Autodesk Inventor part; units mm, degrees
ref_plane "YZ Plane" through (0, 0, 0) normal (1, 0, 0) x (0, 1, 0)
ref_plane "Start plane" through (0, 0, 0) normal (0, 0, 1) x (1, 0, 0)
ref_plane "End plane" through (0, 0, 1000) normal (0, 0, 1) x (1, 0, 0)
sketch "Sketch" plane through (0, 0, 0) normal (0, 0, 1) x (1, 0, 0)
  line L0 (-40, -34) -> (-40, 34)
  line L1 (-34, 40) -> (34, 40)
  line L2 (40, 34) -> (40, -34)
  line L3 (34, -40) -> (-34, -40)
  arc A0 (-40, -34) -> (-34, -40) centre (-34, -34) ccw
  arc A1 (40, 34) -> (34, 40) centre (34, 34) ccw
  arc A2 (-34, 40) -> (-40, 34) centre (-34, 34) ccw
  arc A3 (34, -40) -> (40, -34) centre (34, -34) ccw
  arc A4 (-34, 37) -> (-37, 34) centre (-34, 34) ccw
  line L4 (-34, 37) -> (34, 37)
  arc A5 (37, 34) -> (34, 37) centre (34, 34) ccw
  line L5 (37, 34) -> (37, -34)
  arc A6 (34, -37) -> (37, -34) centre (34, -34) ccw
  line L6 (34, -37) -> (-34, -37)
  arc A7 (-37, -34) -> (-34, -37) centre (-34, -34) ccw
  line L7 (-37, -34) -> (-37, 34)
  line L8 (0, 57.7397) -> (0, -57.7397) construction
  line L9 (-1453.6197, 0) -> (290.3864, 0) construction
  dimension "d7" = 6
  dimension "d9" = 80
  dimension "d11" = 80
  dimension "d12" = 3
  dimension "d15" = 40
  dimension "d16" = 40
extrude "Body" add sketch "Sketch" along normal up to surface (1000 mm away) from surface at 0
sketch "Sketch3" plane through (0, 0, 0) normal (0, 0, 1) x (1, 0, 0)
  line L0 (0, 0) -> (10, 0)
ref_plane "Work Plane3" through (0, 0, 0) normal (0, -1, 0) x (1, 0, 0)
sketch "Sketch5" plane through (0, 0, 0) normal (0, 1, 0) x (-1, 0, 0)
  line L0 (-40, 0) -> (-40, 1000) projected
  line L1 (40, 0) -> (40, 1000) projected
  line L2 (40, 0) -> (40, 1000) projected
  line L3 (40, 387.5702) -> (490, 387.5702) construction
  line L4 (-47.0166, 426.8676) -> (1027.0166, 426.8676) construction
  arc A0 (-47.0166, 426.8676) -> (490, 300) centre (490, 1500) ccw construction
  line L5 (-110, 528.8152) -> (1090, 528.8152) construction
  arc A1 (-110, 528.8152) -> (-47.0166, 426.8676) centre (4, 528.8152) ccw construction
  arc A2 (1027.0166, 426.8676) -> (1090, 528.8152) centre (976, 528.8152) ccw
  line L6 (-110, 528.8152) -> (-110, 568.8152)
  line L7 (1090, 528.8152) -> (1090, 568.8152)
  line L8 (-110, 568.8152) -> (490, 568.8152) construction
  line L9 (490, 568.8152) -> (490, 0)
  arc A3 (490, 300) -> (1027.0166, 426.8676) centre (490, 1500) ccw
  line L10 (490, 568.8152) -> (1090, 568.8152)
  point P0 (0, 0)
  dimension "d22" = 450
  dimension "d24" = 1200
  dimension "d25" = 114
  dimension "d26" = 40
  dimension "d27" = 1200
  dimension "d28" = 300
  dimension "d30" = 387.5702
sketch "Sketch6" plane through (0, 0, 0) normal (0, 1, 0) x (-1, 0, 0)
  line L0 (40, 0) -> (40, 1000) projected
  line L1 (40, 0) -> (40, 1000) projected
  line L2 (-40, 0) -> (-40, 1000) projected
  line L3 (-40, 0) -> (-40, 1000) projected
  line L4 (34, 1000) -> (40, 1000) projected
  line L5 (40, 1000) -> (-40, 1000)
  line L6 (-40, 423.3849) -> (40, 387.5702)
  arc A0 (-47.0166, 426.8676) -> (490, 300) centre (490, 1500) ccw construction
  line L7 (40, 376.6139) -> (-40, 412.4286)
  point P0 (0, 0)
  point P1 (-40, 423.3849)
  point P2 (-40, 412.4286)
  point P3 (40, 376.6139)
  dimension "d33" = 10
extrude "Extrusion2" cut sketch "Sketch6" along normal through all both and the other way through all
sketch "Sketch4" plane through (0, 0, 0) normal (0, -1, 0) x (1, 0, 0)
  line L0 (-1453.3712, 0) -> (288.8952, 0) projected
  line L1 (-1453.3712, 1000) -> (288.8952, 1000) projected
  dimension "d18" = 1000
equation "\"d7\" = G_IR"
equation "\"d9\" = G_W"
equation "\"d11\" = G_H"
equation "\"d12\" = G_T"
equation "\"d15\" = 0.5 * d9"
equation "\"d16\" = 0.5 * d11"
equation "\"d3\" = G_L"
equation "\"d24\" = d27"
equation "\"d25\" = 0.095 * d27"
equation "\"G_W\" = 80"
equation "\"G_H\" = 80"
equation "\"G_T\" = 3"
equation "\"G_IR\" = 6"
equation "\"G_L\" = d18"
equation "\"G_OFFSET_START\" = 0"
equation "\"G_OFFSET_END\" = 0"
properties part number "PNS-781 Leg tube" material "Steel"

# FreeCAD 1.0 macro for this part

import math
import FreeCAD as App
import Part
import Sketcher
from FreeCAD import Vector
Q = App.Units.Quantity


def add_polygon(sketch, points):
    """Adds a closed chain of lines whose ends are joined by coincident constraints."""
    first, n = sketch.GeometryCount, len(points)
    for a, b in zip(points, points[1:] + points[:1]):
        sketch.addGeometry(Part.LineSegment(App.Vector(*a, 0), App.Vector(*b, 0)), False)
    for i in range(n):
        sketch.addConstraint(Sketcher.Constraint("Coincident", first + i, 2, first + (i + 1) % n, 1))

doc = App.newDocument("Part")
body = doc.addObject("PartDesign::Body", "Body")

# Sketch on XY plane
sketch1 = doc.addObject("Sketcher::SketchObject", "Sketch")
body.addObject(sketch1)
sketch1.AttachmentSupport = (doc.XY_Plane, [""])
sketch1.MapMode = "FlatFace"
sketch1.addGeometry([
    Part.LineSegment(Vector(-40, 34, 0), Vector(-40, -34, 0)),  # 0
    Part.ArcOfCircle(Part.Circle(Vector(-34, -34, 0), Vector(0, 0, 1), 6), math.radians(180), math.radians(270)),  # 1
    Part.LineSegment(Vector(-34, -40, 0), Vector(34, -40, 0)),  # 2
    Part.ArcOfCircle(Part.Circle(Vector(34, -34, 0), Vector(0, 0, 1), 6), math.radians(-90), math.radians(0)),  # 3
    Part.LineSegment(Vector(40, -34, 0), Vector(40, 34, 0)),  # 4
    Part.ArcOfCircle(Part.Circle(Vector(34, 34, 0), Vector(0, 0, 1), 6), math.radians(0), math.radians(90)),  # 5
    Part.LineSegment(Vector(34, 40, 0), Vector(-34, 40, 0)),  # 6
    Part.ArcOfCircle(Part.Circle(Vector(-34, 34, 0), Vector(0, 0, 1), 6), math.radians(90), math.radians(180)),  # 7
    Part.ArcOfCircle(Part.Circle(Vector(-34, 34, 0), Vector(0, 0, 1), 3), math.radians(90), math.radians(180)),  # 8
    Part.LineSegment(Vector(-34, 37, 0), Vector(34, 37, 0)),  # 9
    Part.ArcOfCircle(Part.Circle(Vector(34, 34, 0), Vector(0, 0, 1), 3), math.radians(0), math.radians(90)),  # 10
    Part.LineSegment(Vector(37, 34, 0), Vector(37, -34, 0)),  # 11
    Part.ArcOfCircle(Part.Circle(Vector(34, -34, 0), Vector(0, 0, 1), 3), math.radians(-90), math.radians(0)),  # 12
    Part.LineSegment(Vector(34, -37, 0), Vector(-34, -37, 0)),  # 13
    Part.ArcOfCircle(Part.Circle(Vector(-34, -34, 0), Vector(0, 0, 1), 3), math.radians(180), math.radians(270)),  # 14
    Part.LineSegment(Vector(-37, -34, 0), Vector(-37, 34, 0)),  # 15
], False)
sketch1.addConstraint([
    Sketcher.Constraint("Tangent", 0, 2, 1, 1),
    Sketcher.Constraint("Tangent", 1, 2, 2, 1),
    Sketcher.Constraint("Tangent", 2, 2, 3, 1),
    Sketcher.Constraint("Tangent", 3, 2, 4, 1),
    Sketcher.Constraint("Tangent", 4, 2, 5, 1),
    Sketcher.Constraint("Tangent", 5, 2, 6, 1),
    Sketcher.Constraint("Tangent", 6, 2, 7, 1),
    Sketcher.Constraint("Tangent", 7, 2, 0, 1),
    Sketcher.Constraint("Tangent", 8, 1, 9, 1),
    Sketcher.Constraint("Tangent", 9, 2, 10, 2),
    Sketcher.Constraint("Tangent", 10, 1, 11, 1),
    Sketcher.Constraint("Tangent", 11, 2, 12, 2),
    Sketcher.Constraint("Tangent", 12, 1, 13, 1),
    Sketcher.Constraint("Tangent", 13, 2, 14, 2),
    Sketcher.Constraint("Tangent", 14, 1, 15, 1),
    Sketcher.Constraint("Tangent", 15, 2, 8, 2),
    Sketcher.Constraint("Vertical", 0),
    Sketcher.Constraint("Horizontal", 2),
    Sketcher.Constraint("Vertical", 4),
    Sketcher.Constraint("Horizontal", 6),
    Sketcher.Constraint("Horizontal", 9),
    Sketcher.Constraint("Vertical", 11),
    Sketcher.Constraint("Horizontal", 13),
    Sketcher.Constraint("Vertical", 15),
    Sketcher.Constraint("Coincident", 8, 3, 7, 3),
    Sketcher.Constraint("Coincident", 10, 3, 5, 3),
    Sketcher.Constraint("Coincident", 12, 3, 3, 3),
    Sketcher.Constraint("Equal", 1, 3),
    Sketcher.Constraint("Equal", 3, 5),
    Sketcher.Constraint("Equal", 5, 7),
    Sketcher.Constraint("Equal", 12, 14),
    Sketcher.Constraint("Symmetric", 1, 3, 5, 3, -1, 1),
    Sketcher.Constraint("Equal", 13, 0),
    Sketcher.Constraint("Radius", 1, Q("6 mm")),
    Sketcher.Constraint("Radius", 8, Q("3 mm")),
    Sketcher.Constraint("DistanceX", 0, 2, -1, 1, Q("40 mm")),
])
pad1 = doc.addObject("PartDesign::Pad", "Pad")
body.addObject(pad1)
pad1.Profile = sketch1
pad1.Length = 1000

# Sketch on XZ plane
sketch2 = doc.addObject("Sketcher::SketchObject", "Sketch001")
body.addObject(sketch2)
sketch2.AttachmentSupport = (doc.XZ_Plane, [""])
sketch2.MapMode = "FlatFace"
add_polygon(sketch2, [(40, 412), (-40, 377), (-40, 1000), (40, 1000)])  # lines 0-3
sketch2.addConstraint([
    Sketcher.Constraint("Vertical", 1),
    Sketcher.Constraint("Horizontal", 2),
    Sketcher.Constraint("Vertical", 3),
    Sketcher.Constraint("DistanceX", 2, 1, 2, 2, Q("80 mm")),
    Sketcher.Constraint("DistanceX", 0, 2, -1, 1, Q("40 mm")),
    Sketcher.Constraint("DistanceY", -1, 1, 1, 2, Q("1000 mm")),
    Sketcher.Constraint("DistanceY", 1, 1, 1, 2, Q("623.386 mm")),
    Sketcher.Constraint("Distance", 0, Q("87.651 mm")),
])
pocket1 = doc.addObject("PartDesign::Pocket", "Pocket")
body.addObject(pocket1)
pocket1.Profile = sketch2
pocket1.Type = "ThroughAll"
pocket1.Midplane = True

doc.recompute()
